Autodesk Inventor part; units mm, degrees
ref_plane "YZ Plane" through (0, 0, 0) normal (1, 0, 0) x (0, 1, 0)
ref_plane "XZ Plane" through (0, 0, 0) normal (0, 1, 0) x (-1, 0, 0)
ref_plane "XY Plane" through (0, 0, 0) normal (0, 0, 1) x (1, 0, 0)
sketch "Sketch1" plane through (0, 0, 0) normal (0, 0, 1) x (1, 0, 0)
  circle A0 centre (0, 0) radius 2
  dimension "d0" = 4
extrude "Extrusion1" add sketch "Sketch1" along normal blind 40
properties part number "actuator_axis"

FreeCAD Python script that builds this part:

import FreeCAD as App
import Part
import Sketcher

V = App.Vector

doc = App.newDocument("Part")
body = doc.addObject("PartDesign::Body", "Body")

sketch1 = doc.addObject("Sketcher::SketchObject", "Sketch")
body.addObject(sketch1)
sketch1.AttachmentSupport = (doc.XY_Plane, [""])
sketch1.MapMode = "FlatFace"
sketch1.addGeometry(Part.Circle(V(0, 0, 0), V(0, 0, 1), 2), False)
sketch1.addConstraint(Sketcher.Constraint("Coincident", 0, 3, -1, 1))
sketch1.addConstraint(Sketcher.Constraint("Diameter", 0, 4.0))
pad1 = doc.addObject("PartDesign::Pad", "Pad")
body.addObject(pad1)
pad1.Profile = sketch1
pad1.Length = 40

doc.recompute()
